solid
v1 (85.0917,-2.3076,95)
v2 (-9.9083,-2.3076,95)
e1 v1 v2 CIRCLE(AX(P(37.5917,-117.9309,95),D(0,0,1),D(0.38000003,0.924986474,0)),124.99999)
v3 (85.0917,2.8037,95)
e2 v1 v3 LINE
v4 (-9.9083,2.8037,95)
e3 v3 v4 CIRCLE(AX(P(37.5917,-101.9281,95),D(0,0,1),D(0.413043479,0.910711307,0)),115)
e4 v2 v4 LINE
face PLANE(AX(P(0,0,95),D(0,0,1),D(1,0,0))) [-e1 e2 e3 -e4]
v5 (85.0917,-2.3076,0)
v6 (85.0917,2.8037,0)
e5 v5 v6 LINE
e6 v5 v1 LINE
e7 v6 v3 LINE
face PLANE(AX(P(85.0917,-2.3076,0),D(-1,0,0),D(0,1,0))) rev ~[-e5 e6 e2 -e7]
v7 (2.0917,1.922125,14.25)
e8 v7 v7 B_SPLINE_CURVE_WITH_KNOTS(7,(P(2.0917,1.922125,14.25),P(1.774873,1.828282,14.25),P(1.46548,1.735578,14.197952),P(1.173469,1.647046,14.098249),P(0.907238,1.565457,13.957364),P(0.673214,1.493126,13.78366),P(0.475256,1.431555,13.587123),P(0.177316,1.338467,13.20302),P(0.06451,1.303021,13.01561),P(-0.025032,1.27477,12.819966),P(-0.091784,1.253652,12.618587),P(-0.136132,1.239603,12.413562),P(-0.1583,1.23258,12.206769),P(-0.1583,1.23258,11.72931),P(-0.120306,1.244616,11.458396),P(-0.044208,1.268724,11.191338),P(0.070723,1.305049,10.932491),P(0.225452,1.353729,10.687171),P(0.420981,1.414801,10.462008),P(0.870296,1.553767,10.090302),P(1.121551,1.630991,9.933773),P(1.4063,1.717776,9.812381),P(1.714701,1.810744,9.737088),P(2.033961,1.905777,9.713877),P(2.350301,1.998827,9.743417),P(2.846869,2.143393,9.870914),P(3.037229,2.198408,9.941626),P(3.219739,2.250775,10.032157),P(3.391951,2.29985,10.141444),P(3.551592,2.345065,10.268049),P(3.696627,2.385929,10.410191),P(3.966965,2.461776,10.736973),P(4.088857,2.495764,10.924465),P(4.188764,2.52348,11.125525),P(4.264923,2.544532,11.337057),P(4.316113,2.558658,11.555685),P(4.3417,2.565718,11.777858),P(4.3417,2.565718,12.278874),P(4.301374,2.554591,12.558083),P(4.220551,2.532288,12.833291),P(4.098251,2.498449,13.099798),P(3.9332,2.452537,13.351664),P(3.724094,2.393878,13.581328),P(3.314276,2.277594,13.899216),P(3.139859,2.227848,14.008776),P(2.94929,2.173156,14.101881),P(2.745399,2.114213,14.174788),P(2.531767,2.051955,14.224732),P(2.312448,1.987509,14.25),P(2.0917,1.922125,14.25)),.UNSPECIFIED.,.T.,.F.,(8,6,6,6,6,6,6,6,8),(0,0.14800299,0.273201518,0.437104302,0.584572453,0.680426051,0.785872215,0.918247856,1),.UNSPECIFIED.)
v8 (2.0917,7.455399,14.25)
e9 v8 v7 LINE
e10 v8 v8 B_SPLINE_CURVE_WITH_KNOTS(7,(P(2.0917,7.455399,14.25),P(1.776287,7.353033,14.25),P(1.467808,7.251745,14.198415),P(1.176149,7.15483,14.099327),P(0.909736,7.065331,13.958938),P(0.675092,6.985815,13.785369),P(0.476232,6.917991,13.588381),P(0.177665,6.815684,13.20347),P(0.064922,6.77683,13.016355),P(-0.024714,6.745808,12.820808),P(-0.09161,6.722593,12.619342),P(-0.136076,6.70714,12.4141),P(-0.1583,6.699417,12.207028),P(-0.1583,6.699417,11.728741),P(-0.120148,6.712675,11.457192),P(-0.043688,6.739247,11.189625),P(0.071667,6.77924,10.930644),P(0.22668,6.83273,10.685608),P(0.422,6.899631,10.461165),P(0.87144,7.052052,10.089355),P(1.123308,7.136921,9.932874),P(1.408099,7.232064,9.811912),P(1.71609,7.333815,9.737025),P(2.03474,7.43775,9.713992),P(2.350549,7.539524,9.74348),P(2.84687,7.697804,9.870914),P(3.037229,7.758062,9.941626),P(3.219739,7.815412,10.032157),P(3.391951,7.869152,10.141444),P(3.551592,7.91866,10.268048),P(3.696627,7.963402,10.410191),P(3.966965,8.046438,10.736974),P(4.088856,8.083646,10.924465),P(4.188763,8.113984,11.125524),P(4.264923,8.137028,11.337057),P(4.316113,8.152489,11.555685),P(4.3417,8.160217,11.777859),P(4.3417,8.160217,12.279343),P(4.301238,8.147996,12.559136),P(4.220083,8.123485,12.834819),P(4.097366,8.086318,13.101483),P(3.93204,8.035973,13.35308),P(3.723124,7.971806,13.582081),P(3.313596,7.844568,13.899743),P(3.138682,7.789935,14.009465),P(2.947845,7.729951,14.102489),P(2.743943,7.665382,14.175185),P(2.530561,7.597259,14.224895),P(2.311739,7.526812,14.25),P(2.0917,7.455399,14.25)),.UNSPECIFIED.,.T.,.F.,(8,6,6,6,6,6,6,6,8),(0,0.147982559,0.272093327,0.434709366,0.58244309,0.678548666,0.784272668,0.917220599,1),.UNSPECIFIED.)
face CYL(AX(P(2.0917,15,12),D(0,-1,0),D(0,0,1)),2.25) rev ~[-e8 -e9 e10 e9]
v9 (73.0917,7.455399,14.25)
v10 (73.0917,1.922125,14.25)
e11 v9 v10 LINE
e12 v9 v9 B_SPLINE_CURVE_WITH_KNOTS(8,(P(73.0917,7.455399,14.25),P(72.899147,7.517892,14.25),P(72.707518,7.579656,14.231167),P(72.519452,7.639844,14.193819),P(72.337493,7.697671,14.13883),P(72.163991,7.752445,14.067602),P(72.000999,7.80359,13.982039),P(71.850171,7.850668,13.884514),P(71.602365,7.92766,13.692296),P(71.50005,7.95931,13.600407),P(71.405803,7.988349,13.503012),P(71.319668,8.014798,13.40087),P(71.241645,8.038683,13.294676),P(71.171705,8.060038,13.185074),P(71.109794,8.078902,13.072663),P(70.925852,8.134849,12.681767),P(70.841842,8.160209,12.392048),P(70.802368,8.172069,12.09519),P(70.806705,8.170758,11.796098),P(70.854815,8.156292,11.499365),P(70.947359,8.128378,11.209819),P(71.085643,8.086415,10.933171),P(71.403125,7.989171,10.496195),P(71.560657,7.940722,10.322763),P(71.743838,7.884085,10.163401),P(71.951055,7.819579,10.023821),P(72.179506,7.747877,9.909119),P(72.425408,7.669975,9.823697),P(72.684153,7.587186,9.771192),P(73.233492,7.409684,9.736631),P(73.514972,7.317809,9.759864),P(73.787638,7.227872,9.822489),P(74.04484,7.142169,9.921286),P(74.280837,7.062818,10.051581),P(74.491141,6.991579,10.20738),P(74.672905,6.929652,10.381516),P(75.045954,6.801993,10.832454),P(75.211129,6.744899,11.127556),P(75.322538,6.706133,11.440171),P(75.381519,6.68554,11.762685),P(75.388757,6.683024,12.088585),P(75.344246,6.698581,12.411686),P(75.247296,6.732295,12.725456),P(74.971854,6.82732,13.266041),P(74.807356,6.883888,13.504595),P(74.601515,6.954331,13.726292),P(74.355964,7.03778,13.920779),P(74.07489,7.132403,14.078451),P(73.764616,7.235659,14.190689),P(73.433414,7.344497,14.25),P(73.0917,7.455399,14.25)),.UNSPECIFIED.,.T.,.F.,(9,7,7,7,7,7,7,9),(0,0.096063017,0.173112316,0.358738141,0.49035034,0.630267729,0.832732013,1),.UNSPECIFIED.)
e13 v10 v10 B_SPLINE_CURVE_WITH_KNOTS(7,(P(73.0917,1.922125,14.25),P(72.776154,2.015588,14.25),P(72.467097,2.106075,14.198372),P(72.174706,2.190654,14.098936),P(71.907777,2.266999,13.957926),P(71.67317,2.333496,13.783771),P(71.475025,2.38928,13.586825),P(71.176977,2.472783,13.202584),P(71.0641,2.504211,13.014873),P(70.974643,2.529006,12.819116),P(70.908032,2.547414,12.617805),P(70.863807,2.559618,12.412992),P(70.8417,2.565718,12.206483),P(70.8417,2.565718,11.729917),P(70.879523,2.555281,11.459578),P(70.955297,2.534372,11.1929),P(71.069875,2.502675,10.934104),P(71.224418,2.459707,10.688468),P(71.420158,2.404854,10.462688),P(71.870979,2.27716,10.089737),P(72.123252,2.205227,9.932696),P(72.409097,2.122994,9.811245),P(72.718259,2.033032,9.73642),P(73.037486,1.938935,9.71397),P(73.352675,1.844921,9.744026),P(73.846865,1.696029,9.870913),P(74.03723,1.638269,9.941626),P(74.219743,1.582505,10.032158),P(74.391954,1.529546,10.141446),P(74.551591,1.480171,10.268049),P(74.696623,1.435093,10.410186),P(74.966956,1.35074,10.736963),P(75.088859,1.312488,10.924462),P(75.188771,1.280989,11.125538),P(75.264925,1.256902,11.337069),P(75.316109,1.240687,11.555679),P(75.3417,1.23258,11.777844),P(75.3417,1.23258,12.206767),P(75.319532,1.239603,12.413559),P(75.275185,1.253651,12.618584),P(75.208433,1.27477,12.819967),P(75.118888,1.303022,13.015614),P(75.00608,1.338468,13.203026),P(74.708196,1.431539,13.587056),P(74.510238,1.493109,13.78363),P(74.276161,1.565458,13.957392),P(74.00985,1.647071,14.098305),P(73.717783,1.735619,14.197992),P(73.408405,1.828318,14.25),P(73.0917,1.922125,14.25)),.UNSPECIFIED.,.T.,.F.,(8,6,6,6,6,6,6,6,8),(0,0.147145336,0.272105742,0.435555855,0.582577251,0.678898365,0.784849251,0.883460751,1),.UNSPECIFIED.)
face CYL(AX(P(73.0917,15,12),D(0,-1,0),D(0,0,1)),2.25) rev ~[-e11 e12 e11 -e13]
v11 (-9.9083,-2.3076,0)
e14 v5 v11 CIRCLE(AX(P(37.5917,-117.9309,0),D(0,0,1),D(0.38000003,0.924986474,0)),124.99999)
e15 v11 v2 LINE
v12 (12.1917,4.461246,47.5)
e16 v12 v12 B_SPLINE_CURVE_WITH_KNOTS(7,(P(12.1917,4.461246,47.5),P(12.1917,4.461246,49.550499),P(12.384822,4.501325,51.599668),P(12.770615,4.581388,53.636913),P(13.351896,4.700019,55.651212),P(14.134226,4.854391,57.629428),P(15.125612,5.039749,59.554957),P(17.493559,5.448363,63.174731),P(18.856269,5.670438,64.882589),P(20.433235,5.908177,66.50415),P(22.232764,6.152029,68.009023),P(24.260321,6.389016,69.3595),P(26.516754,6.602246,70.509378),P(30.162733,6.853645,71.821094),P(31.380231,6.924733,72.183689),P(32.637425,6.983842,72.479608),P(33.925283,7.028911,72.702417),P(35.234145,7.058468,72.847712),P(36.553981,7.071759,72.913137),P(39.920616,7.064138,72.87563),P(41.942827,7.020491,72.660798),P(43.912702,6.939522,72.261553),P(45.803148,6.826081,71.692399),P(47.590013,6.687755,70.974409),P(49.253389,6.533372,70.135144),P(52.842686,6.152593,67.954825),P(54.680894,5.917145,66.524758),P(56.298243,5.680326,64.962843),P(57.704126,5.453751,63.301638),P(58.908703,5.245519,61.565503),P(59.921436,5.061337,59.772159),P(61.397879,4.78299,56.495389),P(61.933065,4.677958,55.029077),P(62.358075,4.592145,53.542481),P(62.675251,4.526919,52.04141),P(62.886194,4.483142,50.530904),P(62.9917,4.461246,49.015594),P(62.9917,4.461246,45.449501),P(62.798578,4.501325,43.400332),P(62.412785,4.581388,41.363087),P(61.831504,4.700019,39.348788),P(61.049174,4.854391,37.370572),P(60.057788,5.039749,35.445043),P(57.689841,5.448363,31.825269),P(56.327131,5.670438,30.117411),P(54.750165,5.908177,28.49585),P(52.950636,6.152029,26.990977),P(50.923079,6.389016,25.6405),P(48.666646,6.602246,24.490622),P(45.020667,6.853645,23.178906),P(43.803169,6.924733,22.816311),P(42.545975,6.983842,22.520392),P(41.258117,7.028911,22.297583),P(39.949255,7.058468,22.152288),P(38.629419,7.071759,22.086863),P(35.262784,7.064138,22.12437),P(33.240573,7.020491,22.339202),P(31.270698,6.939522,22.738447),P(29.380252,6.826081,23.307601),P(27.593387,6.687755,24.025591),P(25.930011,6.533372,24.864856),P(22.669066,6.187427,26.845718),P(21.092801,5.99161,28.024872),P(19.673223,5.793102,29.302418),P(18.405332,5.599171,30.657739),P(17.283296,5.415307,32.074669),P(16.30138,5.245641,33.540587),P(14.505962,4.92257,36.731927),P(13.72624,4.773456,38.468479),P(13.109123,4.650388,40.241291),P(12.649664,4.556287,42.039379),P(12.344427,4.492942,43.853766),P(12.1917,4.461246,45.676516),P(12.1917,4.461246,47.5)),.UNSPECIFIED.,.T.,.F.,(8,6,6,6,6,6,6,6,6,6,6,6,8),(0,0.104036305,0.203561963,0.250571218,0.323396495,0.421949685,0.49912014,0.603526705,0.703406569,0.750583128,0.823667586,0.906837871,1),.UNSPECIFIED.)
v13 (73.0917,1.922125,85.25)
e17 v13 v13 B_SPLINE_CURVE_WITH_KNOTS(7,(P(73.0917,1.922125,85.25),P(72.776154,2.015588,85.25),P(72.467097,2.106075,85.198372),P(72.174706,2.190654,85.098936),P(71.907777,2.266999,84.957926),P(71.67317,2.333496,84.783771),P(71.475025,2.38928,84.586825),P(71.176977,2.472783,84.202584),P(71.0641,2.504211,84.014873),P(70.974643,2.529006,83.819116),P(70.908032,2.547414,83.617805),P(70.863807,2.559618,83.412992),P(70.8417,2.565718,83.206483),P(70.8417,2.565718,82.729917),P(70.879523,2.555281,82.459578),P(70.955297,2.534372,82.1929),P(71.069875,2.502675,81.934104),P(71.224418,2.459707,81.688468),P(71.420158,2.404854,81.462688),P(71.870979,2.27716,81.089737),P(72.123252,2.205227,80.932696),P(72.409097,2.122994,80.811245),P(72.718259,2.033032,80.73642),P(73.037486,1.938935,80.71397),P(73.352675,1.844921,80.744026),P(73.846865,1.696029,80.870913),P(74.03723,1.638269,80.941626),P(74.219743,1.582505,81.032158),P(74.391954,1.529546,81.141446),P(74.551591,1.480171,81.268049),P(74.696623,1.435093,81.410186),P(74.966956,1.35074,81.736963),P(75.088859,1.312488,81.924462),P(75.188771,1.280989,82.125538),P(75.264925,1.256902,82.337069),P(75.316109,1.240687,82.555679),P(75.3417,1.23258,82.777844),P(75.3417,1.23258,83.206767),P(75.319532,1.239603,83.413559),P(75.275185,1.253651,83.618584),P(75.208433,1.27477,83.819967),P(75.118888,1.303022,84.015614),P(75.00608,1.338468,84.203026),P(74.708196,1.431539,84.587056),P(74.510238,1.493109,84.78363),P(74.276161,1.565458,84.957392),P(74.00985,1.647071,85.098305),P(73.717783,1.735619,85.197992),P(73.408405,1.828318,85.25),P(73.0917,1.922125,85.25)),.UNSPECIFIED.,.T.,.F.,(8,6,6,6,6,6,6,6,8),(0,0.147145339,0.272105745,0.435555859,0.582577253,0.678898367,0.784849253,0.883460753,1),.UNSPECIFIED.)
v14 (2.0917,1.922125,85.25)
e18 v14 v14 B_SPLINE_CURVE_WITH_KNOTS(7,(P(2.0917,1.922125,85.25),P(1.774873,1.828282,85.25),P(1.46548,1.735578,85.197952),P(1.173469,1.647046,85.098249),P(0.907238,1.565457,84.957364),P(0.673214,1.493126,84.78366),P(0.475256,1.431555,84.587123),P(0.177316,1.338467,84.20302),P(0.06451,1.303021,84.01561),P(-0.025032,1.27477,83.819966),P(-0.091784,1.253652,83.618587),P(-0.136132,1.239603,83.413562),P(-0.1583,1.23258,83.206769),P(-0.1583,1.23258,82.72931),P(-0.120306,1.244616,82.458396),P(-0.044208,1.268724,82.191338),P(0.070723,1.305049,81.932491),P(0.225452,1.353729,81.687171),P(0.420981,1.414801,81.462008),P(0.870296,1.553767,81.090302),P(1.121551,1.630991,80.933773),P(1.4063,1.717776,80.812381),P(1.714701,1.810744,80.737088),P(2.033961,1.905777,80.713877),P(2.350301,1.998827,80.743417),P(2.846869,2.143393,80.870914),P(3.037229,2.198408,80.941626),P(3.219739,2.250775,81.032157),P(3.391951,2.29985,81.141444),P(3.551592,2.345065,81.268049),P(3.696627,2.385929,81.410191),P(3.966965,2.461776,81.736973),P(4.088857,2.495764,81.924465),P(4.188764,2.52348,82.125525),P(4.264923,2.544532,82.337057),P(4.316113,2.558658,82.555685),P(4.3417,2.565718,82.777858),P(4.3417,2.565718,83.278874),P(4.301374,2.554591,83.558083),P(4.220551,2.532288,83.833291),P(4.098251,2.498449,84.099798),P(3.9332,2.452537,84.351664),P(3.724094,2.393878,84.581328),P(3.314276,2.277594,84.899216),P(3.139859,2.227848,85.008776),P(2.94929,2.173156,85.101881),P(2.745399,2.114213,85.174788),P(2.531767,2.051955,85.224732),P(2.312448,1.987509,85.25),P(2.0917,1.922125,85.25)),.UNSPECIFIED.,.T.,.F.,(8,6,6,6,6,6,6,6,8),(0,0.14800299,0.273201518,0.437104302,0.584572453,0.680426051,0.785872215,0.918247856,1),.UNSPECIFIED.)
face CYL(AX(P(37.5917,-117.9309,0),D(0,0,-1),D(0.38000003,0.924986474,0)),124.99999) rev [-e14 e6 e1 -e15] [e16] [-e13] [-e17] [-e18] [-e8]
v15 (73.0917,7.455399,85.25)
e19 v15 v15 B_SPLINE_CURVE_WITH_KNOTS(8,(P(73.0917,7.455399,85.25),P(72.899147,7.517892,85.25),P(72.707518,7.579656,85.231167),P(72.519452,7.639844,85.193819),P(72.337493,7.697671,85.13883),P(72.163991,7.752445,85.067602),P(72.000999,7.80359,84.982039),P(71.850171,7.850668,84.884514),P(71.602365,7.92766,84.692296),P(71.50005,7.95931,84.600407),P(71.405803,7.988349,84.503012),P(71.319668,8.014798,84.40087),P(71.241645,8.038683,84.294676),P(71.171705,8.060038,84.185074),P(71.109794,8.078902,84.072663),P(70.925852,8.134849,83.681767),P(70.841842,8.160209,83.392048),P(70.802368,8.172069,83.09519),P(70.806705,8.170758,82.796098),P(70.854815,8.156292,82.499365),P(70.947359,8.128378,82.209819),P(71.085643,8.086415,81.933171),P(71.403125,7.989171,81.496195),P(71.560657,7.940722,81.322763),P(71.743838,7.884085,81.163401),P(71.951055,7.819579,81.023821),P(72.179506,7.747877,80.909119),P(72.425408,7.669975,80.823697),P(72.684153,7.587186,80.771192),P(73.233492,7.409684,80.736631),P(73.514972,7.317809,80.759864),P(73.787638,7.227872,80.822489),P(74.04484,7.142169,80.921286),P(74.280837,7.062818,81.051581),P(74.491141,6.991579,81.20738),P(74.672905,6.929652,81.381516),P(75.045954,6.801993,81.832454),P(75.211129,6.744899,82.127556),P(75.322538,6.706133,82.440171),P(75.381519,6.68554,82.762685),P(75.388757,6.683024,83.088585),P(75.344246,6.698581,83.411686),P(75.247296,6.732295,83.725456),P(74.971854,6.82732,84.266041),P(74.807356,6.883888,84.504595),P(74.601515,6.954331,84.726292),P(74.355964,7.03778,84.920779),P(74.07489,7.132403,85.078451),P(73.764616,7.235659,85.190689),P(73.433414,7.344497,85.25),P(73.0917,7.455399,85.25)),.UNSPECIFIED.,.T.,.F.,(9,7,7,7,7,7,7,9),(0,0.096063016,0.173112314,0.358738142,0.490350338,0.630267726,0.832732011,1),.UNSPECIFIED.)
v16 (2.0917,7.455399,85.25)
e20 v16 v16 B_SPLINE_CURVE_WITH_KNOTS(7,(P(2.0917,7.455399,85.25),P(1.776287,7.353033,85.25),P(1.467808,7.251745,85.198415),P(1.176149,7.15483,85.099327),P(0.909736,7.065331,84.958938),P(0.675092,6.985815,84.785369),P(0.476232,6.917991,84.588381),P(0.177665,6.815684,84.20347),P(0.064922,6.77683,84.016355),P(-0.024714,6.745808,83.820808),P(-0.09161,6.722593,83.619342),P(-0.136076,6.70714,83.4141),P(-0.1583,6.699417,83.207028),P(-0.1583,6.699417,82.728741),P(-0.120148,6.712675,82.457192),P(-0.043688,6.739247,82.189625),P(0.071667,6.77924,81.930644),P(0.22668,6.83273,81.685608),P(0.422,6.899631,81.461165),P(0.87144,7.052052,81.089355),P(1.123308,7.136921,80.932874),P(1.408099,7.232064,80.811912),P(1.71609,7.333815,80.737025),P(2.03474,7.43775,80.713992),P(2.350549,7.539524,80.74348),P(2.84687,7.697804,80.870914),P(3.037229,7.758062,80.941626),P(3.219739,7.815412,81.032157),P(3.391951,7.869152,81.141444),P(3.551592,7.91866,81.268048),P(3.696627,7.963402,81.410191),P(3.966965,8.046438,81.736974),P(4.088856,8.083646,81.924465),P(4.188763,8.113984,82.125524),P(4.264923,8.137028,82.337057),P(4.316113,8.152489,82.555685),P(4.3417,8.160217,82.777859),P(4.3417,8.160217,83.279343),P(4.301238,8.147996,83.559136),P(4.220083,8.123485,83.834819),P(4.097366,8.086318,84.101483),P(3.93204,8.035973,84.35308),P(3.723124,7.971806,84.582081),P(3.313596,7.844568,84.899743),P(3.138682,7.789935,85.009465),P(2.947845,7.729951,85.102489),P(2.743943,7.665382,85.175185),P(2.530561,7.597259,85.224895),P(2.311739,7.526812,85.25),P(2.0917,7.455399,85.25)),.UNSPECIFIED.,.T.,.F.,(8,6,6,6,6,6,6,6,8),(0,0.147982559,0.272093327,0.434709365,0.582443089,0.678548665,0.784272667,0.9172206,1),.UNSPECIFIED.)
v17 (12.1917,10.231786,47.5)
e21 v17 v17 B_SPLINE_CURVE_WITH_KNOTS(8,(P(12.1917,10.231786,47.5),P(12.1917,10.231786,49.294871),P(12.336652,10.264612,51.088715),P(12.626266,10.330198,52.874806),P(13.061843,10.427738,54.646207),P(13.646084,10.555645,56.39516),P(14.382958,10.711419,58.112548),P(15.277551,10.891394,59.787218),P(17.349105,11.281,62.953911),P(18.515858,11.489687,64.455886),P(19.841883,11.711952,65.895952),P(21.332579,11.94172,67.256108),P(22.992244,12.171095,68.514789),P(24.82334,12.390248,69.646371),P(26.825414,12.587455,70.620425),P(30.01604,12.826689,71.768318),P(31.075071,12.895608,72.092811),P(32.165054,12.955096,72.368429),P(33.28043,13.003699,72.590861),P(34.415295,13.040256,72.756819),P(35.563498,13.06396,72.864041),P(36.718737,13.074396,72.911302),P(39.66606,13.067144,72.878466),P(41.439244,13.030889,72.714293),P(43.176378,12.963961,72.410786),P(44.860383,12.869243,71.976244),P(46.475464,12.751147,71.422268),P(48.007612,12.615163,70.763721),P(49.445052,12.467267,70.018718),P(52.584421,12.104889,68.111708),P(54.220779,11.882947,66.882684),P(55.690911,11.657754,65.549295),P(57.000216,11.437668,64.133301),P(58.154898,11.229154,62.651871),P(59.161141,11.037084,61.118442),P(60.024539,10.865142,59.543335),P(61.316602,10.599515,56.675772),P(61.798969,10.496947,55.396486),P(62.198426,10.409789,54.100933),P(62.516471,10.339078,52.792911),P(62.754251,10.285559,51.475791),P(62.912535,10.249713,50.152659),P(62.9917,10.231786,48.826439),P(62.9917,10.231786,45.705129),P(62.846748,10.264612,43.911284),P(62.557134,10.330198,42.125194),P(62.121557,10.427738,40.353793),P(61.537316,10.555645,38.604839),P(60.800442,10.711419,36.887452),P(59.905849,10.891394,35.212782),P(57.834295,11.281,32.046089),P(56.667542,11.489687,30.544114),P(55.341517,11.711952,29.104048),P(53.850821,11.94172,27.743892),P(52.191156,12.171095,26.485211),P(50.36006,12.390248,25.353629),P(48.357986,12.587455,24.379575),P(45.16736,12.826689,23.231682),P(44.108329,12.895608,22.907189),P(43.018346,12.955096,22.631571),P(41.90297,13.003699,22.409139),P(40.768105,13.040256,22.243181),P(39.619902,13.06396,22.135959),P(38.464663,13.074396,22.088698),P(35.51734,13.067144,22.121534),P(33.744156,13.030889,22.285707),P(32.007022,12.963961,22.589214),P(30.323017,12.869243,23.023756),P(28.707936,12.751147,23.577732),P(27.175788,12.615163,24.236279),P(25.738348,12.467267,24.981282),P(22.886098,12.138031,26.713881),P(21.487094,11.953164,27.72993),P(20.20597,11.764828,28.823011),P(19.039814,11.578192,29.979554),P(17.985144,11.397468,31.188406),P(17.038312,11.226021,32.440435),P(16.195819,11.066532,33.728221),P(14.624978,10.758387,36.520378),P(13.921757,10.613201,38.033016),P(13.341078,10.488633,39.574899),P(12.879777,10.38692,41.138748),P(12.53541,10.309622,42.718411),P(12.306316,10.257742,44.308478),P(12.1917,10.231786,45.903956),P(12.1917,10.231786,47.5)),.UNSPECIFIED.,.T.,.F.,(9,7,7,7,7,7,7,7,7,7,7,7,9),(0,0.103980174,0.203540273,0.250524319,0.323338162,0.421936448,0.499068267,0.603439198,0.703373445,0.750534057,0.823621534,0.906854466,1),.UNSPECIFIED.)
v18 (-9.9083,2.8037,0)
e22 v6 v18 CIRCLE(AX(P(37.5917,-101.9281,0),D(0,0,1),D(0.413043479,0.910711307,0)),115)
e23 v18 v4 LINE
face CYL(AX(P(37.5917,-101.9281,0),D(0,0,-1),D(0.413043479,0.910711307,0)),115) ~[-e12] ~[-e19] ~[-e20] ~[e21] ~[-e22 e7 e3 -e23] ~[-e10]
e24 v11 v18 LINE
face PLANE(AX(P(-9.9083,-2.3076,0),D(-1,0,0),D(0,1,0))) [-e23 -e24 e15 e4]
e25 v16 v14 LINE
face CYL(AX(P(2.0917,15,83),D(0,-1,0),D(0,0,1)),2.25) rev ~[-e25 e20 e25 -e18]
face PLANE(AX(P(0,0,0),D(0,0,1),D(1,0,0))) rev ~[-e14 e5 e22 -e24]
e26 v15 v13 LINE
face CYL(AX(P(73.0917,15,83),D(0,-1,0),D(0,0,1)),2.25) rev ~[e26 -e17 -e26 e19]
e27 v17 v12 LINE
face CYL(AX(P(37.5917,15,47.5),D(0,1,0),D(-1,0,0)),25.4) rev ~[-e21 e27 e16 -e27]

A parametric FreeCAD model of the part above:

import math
import FreeCAD as App
import Part
import Sketcher

V = App.Vector

doc = App.newDocument("Part")
params = doc.addObject("Spreadsheet::Sheet", "Params")
for row, (alias, value) in enumerate([
    ("sketch1_radius", "125 mm"),
    ("sketch1_radius2", "115 mm"),
    ("pad1_length", "95 mm"),
    ("sketch2_diameter", "4.5 mm"),
    ("hole_diameter", "4.5 mm"),
    ("hole_depth", "34.9875 mm"),
    ("sketch3_diameter", "50.8 mm"),
    ("pocket1_length", "24.2875 mm"),
], start=1):
    params.set(f"A{row}", alias)
    params.set(f"B{row}", "=" + value)
    params.setAlias(f"B{row}", alias)

body = doc.addObject("PartDesign::Body", "Body")

sketch1 = body.newObject("Sketcher::SketchObject", "Sketch")
sketch1.AttachmentSupport = (doc.getObject("XY_Plane"), [""])
sketch1.MapMode = "FlatFace"
sketch1.addGeometry([
    Part.ArcOfCircle(Part.Circle(V(38, -118, 0), V(0, 0, 1), 125), math.radians(68), math.radians(112)),
    Part.LineSegment(V(85, -2, 0), V(85, 3, 0)),
    Part.ArcOfCircle(Part.Circle(V(38, -102, 0), V(0, 0, 1), 115), math.radians(66), math.radians(114)),
    Part.LineSegment(V(-10, 3, 0), V(-10, -2, 0)),
], False)
sketch1.addConstraint([
    Sketcher.Constraint("Coincident", 0, 1, 1, 1),
    Sketcher.Constraint("Coincident", 1, 2, 2, 1),
    Sketcher.Constraint("Coincident", 2, 2, 3, 1),
    Sketcher.Constraint("Coincident", 3, 2, 0, 2),
    Sketcher.Constraint("Vertical", 1),
    Sketcher.Constraint("Vertical", 3),
    Sketcher.Constraint("Horizontal", 1, 2, 2, 2),
    Sketcher.Constraint("Horizontal", 0, 1, 3, 2),
    Sketcher.Constraint("Radius", 0, 125.0),
    Sketcher.Constraint("Radius", 2, 115.0),
    Sketcher.Constraint("DistanceX", 2, 2, 1, 2, 95.0),
    Sketcher.Constraint("DistanceY", 1, 1, 1, 2, 5.1113),
    Sketcher.Constraint("DistanceY", 0, 3, -1, 1, 117.931),
    Sketcher.Constraint("DistanceX", -1, 1, 0, 3, 37.5917),
])
sketch1.setExpression("Constraints[8]", "Params.sketch1_radius")
sketch1.setExpression("Constraints[9]", "Params.sketch1_radius2")
pad1 = body.newObject("PartDesign::Pad", "Pad")
pad1.Profile = sketch1
pad1.setExpression("Length", "Params.pad1_length")

sketch2 = body.newObject("Sketcher::SketchObject", "Sketch001")
sketch2.AttachmentSupport = (doc.getObject("XZ_Plane"), [""])
sketch2.MapMode = "FlatFace"
sketch2.AttachmentOffset = App.Placement(V(0, 0, -15), App.Rotation())
sketch2.addGeometry([
    Part.Circle(V(73.1, 83, 0), V(0, 0, 1), 2.2),
    Part.Circle(V(2.1, 83, 0), V(0, 0, 1), 2.2),
    Part.Circle(V(2.1, 12, 0), V(0, 0, 1), 2.2),
    Part.Circle(V(73.1, 12, 0), V(0, 0, 1), 2.2),
], False)
sketch2.addConstraint([
    Sketcher.Constraint("Equal", 0, 1),
    Sketcher.Constraint("Equal", 1, 2),
    Sketcher.Constraint("Equal", 2, 3),
    Sketcher.Constraint("Horizontal", 0, 3, 1, 3),
    Sketcher.Constraint("Horizontal", 2, 3, 3, 3),
    Sketcher.Constraint("Vertical", 1, 3, 2, 3),
    Sketcher.Constraint("Vertical", 0, 3, 3, 3),
    Sketcher.Constraint("Diameter", 0, 4.5),
    Sketcher.Constraint("DistanceY", -1, 1, 0, 3, 83.0),
    Sketcher.Constraint("DistanceY", -1, 1, 2, 3, 12.0),
    Sketcher.Constraint("DistanceX", 1, 3, 0, 3, 71.0),
    Sketcher.Constraint("DistanceX", -1, 1, 0, 3, 73.0917),
])
sketch2.setExpression("Constraints[7]", "Params.sketch2_diameter")
doc.recompute()
hole = body.newObject("PartDesign::Hole", "Hole")
hole.Profile = sketch2
hole.ThreadType = "None"
hole.setExpression("Diameter", "Params.hole_diameter")
hole.DepthType = "Dimension"
hole.setExpression("Depth", "Params.hole_depth")
hole.DrillPoint = "Angled"
hole.DrillPointAngle = 118
hole.Reversed = True

sketch3 = body.newObject("Sketcher::SketchObject", "Sketch002")
sketch3.AttachmentSupport = (doc.getObject("XZ_Plane"), [""])
sketch3.MapMode = "FlatFace"
sketch3.AttachmentOffset = App.Placement(V(0, 0, -15), App.Rotation())
sketch3.addGeometry(Part.Circle(V(38, 48, 0), V(0, 0, 1), 25), False)
sketch3.addConstraint([
    Sketcher.Constraint("Diameter", 0, 50.8),
    Sketcher.Constraint("DistanceY", -1, 1, 0, 3, 47.5),
    Sketcher.Constraint("DistanceX", -1, 1, 0, 3, 37.5917),
])
sketch3.setExpression("Constraints[0]", "Params.sketch3_diameter")
pocket1 = body.newObject("PartDesign::Pocket", "Pocket")
pocket1.Profile = sketch3
pocket1.setExpression("Length", "Params.pocket1_length")
pocket1.Reversed = True

doc.recompute()
